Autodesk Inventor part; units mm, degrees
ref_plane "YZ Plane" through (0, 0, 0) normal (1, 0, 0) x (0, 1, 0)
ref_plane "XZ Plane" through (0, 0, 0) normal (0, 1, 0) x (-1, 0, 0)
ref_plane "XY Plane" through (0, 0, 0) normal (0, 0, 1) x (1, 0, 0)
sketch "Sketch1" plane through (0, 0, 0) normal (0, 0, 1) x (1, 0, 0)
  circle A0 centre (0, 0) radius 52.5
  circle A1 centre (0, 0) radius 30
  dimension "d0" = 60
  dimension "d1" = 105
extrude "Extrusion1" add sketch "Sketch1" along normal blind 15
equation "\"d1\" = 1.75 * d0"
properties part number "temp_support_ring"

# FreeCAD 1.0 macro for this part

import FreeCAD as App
import Part
import Sketcher

V = App.Vector
Q = App.Units.Quantity

doc = App.newDocument("Part")
params = doc.addObject("Spreadsheet::Sheet", "Params")
for row, (alias, value) in enumerate([
    ("sketch1_diameter", "105 mm"),
    ("sketch1_diameter2", "60 mm"),
    ("pad1_length", "15 mm"),
], start=1):
    params.set(f"A{row}", alias)
    params.set(f"B{row}", "=" + value)
    params.setAlias(f"B{row}", alias)

body = doc.addObject("PartDesign::Body", "Body")

sketch1 = doc.addObject("Sketcher::SketchObject", "Sketch")
body.addObject(sketch1)
sketch1.AttachmentSupport = (doc.XY_Plane, [""])
sketch1.MapMode = "FlatFace"
sketch1.addGeometry([
    Part.Circle(V(0, 0, 0), V(0, 0, 1), 52.5),
    Part.Circle(V(0, 0, 0), V(0, 0, 1), 30),
], False)
sketch1.addConstraint([
    Sketcher.Constraint("Coincident", 0, 3, -1, 1),
    Sketcher.Constraint("Coincident", 1, 3, -1, 1),
    Sketcher.Constraint("Diameter", 0, Q("105 mm")),
    Sketcher.Constraint("Diameter", 1, Q("60 mm")),
])
sketch1.setExpression("Constraints[2]", "Params.sketch1_diameter")
sketch1.setExpression("Constraints[3]", "Params.sketch1_diameter2")
pad1 = doc.addObject("PartDesign::Pad", "Pad")
body.addObject(pad1)
pad1.Profile = sketch1
pad1.setExpression("Length", "Params.pad1_length")

doc.recompute()
